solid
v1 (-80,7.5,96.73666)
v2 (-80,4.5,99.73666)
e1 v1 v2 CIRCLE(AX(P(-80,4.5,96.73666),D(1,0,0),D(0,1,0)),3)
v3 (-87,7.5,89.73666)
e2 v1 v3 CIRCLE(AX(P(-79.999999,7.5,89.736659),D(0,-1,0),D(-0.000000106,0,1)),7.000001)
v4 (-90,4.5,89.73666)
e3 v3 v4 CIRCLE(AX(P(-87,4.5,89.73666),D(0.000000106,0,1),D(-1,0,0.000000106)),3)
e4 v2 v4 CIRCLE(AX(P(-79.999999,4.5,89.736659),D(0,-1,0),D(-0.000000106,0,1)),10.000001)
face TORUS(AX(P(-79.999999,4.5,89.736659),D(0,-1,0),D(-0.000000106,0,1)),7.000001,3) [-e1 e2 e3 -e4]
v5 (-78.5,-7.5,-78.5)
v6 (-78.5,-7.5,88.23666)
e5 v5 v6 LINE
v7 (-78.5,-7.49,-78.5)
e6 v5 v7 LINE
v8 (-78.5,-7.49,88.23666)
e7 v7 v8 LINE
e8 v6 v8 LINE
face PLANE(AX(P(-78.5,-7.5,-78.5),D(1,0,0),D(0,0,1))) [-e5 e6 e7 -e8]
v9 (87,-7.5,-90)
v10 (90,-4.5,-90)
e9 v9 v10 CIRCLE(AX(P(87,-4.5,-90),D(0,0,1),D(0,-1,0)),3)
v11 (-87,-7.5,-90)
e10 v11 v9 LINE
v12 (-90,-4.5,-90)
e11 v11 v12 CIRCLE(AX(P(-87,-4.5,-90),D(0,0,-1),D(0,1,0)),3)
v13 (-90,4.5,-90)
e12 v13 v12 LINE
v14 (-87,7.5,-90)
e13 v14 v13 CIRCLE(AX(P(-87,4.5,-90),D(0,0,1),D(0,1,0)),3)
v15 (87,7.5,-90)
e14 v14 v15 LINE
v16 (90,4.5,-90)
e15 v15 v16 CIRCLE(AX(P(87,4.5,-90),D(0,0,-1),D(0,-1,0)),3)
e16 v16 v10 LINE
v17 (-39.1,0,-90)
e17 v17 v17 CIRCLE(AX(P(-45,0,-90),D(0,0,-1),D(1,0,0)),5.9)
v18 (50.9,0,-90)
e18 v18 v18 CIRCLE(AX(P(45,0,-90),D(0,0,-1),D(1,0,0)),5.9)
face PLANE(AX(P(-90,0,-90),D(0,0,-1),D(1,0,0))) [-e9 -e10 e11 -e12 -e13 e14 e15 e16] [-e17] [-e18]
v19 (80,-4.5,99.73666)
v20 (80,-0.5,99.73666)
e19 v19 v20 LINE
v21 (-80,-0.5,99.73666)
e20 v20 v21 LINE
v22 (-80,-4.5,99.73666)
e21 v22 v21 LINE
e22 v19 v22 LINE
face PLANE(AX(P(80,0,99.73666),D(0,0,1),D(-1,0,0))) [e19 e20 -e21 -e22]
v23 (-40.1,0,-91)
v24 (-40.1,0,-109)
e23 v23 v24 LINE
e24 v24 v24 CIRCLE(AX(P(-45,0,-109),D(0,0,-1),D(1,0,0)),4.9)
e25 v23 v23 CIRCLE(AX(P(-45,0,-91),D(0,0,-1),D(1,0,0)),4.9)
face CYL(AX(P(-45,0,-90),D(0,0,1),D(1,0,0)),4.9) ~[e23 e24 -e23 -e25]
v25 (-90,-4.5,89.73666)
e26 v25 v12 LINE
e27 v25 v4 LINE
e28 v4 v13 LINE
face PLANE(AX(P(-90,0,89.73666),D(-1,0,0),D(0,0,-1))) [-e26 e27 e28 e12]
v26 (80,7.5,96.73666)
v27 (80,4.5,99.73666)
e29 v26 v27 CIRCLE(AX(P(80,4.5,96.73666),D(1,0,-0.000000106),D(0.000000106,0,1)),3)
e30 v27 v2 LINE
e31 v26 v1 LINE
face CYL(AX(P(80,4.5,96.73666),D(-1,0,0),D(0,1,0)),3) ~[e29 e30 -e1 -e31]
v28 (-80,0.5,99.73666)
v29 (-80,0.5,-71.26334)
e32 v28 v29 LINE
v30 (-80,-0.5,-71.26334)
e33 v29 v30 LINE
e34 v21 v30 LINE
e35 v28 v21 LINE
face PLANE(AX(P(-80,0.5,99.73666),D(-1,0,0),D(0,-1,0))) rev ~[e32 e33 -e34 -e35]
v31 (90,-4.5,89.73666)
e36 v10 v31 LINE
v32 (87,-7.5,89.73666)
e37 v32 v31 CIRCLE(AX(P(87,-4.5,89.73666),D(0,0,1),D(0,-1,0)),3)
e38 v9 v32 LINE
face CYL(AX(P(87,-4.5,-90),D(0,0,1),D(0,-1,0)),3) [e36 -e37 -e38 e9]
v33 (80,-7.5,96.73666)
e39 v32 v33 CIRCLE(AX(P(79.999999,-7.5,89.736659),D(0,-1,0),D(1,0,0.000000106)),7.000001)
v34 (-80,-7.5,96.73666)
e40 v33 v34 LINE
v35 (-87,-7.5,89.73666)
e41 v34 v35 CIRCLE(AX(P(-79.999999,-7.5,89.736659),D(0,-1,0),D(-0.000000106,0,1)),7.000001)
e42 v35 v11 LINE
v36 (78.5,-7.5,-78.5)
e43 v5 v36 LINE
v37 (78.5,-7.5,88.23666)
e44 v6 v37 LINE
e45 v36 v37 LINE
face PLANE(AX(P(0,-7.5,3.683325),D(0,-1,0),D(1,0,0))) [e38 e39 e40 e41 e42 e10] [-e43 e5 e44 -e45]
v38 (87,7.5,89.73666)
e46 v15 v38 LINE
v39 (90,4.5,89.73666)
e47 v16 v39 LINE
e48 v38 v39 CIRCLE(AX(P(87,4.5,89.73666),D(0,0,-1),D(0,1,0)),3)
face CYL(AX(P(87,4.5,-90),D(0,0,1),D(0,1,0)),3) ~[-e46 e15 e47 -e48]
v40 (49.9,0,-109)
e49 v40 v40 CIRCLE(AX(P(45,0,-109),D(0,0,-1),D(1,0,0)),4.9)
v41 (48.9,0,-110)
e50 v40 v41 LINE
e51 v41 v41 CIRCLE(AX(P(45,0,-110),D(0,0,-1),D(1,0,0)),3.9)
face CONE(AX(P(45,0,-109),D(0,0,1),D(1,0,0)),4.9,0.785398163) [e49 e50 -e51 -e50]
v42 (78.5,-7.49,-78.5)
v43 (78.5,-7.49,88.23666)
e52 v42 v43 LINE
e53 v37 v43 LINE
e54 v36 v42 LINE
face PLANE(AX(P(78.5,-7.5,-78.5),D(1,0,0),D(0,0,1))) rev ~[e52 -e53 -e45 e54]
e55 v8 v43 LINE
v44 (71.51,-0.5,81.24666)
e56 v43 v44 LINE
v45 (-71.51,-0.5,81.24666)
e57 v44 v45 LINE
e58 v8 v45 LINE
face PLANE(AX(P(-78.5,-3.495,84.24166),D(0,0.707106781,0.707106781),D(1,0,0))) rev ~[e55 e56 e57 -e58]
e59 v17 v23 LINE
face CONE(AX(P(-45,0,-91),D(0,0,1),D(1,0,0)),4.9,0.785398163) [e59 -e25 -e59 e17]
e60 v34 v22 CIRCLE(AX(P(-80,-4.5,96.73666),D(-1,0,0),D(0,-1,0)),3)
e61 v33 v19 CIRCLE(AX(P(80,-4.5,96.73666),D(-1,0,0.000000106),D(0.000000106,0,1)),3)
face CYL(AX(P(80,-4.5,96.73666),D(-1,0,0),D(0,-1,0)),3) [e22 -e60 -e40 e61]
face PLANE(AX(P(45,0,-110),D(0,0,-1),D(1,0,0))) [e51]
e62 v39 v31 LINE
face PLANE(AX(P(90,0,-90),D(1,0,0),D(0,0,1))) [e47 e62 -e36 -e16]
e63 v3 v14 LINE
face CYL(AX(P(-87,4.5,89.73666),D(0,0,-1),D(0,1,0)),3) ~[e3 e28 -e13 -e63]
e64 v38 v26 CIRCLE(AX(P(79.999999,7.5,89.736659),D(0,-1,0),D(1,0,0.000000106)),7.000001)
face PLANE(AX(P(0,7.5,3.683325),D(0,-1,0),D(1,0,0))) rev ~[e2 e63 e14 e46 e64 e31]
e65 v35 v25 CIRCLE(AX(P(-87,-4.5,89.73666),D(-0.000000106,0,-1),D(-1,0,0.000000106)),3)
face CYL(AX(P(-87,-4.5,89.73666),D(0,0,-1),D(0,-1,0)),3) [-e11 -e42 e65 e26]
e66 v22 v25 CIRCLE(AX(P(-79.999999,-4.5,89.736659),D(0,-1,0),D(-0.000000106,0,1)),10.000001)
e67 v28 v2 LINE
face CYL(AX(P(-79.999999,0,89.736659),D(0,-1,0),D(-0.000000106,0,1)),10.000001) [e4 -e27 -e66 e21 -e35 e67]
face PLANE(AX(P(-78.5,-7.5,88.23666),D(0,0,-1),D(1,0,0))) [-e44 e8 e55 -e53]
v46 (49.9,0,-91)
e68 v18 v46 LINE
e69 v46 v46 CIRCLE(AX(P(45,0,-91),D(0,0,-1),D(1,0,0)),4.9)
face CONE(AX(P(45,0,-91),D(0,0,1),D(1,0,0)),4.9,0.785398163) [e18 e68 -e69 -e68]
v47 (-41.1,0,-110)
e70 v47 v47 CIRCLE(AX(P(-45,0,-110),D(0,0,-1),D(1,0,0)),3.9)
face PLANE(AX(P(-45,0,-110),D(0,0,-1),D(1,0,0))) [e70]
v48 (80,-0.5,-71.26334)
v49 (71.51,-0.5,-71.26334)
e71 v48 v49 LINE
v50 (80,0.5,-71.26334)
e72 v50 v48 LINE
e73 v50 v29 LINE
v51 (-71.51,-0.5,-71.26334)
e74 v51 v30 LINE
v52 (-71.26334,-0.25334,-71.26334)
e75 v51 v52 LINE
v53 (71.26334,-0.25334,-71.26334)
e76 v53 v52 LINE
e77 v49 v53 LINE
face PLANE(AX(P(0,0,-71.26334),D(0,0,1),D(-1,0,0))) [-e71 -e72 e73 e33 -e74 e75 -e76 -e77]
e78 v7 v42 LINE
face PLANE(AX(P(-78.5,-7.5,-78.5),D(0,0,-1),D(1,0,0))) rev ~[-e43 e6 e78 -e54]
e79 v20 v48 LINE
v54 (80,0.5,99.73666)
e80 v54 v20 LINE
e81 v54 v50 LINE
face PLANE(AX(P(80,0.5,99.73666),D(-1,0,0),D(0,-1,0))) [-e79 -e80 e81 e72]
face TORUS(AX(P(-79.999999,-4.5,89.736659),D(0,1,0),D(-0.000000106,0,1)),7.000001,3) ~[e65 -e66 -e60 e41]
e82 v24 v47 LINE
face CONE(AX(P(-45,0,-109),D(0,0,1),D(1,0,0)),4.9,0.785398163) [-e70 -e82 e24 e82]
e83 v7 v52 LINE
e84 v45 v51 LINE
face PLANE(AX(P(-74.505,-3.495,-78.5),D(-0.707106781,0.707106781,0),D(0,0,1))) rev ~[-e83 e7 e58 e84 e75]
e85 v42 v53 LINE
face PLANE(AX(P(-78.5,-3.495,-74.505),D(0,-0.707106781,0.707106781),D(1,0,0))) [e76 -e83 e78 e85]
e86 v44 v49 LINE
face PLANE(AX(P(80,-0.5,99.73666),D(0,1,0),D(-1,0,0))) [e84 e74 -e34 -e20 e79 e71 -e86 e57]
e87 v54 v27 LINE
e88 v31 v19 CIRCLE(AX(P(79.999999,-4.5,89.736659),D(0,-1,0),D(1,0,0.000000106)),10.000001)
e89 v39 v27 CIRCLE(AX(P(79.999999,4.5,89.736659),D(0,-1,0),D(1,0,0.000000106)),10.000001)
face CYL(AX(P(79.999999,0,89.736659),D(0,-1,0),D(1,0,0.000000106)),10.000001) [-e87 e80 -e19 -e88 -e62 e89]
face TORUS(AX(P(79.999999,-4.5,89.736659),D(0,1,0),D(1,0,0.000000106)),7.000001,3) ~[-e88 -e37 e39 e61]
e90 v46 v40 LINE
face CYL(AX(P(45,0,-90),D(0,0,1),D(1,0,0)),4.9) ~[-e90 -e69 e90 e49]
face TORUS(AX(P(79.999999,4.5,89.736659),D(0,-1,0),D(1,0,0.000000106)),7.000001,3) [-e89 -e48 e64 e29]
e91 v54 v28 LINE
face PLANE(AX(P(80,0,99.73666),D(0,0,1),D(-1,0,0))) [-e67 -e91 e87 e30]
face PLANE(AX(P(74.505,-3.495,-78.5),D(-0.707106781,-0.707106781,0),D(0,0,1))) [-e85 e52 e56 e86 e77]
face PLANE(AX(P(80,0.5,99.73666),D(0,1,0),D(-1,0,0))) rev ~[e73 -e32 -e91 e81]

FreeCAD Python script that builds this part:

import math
import FreeCAD as App
import Part
import Sketcher
from FreeCAD import Vector
Q = App.Units.Quantity


def edges_at(feature, points):
    """Names of the edges that pass closest to the given points."""
    edges = feature.Shape.Edges
    near = lambda p: min(range(len(edges)), key=lambda i: edges[i].distToShape(Part.Vertex(*p))[0])
    return sorted({f"Edge{near(p) + 1}" for p in points})


def add_polygon(sketch, points):
    """Adds a closed chain of lines whose ends are joined by coincident constraints."""
    first, n = sketch.GeometryCount, len(points)
    for a, b in zip(points, points[1:] + points[:1]):
        sketch.addGeometry(Part.LineSegment(App.Vector(*a, 0), App.Vector(*b, 0)), False)
    for i in range(n):
        sketch.addConstraint(Sketcher.Constraint("Coincident", first + i, 2, first + (i + 1) % n, 1))

doc = App.newDocument("Part")
body = doc.addObject("PartDesign::Body", "Body")

# Sketch on XZ plane
sketch1 = body.newObject("Sketcher::SketchObject", "Sketch")
sketch1.AttachmentSupport = (doc.getObject("XZ_Plane"), [""])
sketch1.MapMode = "FlatFace"
sketch1.addGeometry(Part.LineSegment(Vector(-90, 89.73666, 0), Vector(-90, -90, 0)), False)
sketch1.addGeometry(Part.LineSegment(Vector(-90, -90, 0), Vector(90, -90, 0)), False)
sketch1.addGeometry(Part.LineSegment(Vector(90, -90, 0), Vector(90, 89.73666, 0)), False)
sketch1.addGeometry(Part.ArcOfCircle(Part.Circle(Vector(79.999999, 89.736659, 0), Vector(0, 0, 1), 10.000001), math.radians(0.000006), math.radians(89.999994)), False)
sketch1.addGeometry(Part.LineSegment(Vector(80, 99.73666, 0), Vector(-80, 99.73666, 0)), False)
sketch1.addGeometry(Part.ArcOfCircle(Part.Circle(Vector(-79.999999, 89.736659, 0), Vector(0, 0, 1), 10.000001), math.radians(90.000006), math.radians(179.999994)), False)
sketch1.addConstraint(Sketcher.Constraint("Coincident", 0, 2, 1, 1))
sketch1.addConstraint(Sketcher.Constraint("Coincident", 1, 2, 2, 1))
sketch1.addConstraint(Sketcher.Constraint("Tangent", 2, 2, 3, 1))
sketch1.addConstraint(Sketcher.Constraint("Tangent", 3, 2, 4, 1))
sketch1.addConstraint(Sketcher.Constraint("Tangent", 4, 2, 5, 1))
sketch1.addConstraint(Sketcher.Constraint("Tangent", 5, 2, 0, 1))
sketch1.addConstraint(Sketcher.Constraint("Vertical", 0))
sketch1.addConstraint(Sketcher.Constraint("Horizontal", 1))
sketch1.addConstraint(Sketcher.Constraint("Vertical", 2))
sketch1.addConstraint(Sketcher.Constraint("Horizontal", 4))
sketch1.addConstraint(Sketcher.Constraint("Equal", 3, 5))
sketch1.addConstraint(Sketcher.Constraint("Radius", 3, Q("10.000001 mm")))
sketch1.addConstraint(Sketcher.Constraint("DistanceX", 1, 1, 1, 2, Q("180 mm")))
sketch1.addConstraint(Sketcher.Constraint("DistanceX", -1, 1, 3, 3, Q("79.999999 mm")))
sketch1.addConstraint(Sketcher.Constraint("DistanceY", 0, 2, -1, 1, Q("90 mm")))
sketch1.addConstraint(Sketcher.Constraint("DistanceY", 0, 2, 0, 1, Q("179.73666 mm")))
pad1 = body.newObject("PartDesign::Pad", "Pad")
pad1.Profile = sketch1
pad1.Length = 15
pad1.Midplane = True

# Sketch on XZ plane
sketch2 = body.newObject("Sketcher::SketchObject", "Sketch001")
sketch2.AttachmentSupport = (doc.getObject("XZ_Plane"), [""])
sketch2.MapMode = "FlatFace"
sketch2.AttachmentOffset = App.Placement(Vector(0, 0, 7.5), App.Rotation())
add_polygon(sketch2, [(-78.5, 88.23666), (-78.5, -78.5), (78.5, -78.5), (78.5, 88.23666)])  # lines 0-3
sketch2.addConstraint(Sketcher.Constraint("Vertical", 0))
sketch2.addConstraint(Sketcher.Constraint("Horizontal", 1))
sketch2.addConstraint(Sketcher.Constraint("Vertical", 2))
sketch2.addConstraint(Sketcher.Constraint("Horizontal", 3))
sketch2.addConstraint(Sketcher.Constraint("DistanceX", 1, 1, 1, 2, Q("157 mm")))
sketch2.addConstraint(Sketcher.Constraint("DistanceX", 0, 2, -1, 1, Q("78.5 mm")))
sketch2.addConstraint(Sketcher.Constraint("DistanceY", 0, 2, -1, 1, Q("78.5 mm")))
sketch2.addConstraint(Sketcher.Constraint("DistanceY", 0, 2, 0, 1, Q("166.73666 mm")))
pocket1 = body.newObject("PartDesign::Pocket", "Pocket")
pocket1.Profile = sketch2
pocket1.Length = 8
doc.recompute()

chamfer = body.newObject("PartDesign::Chamfer", "Chamfer")
chamfer.Base = (pocket1, edges_at(pocket1, [
    (0, 0.5, 88.237),
    (-78.5, 0.5, 4.868),
    (0, 0.5, -78.5),
    (78.5, 0.5, 4.868),
]))
chamfer.Size = 7.99

# Sketch on XY plane
sketch3 = body.newObject("Sketcher::SketchObject", "Sketch002")
sketch3.AttachmentSupport = (doc.getObject("XY_Plane"), [""])
sketch3.MapMode = "FlatFace"
sketch3.AttachmentOffset = App.Placement(Vector(0, 0, -90), App.Rotation())
sketch3.addGeometry(Part.Circle(Vector(-45, 0, 0), Vector(0, 0, 1), 4.9), False)
sketch3.addGeometry(Part.Circle(Vector(45, 0, 0), Vector(0, 0, 1), 4.9), False)
sketch3.addConstraint(Sketcher.Constraint("Equal", 0, 1))
sketch3.addConstraint(Sketcher.Constraint("Symmetric", 0, 3, 1, 3, -1, 1))
sketch3.addConstraint(Sketcher.Constraint("PointOnObject", 0, 3, -1))
sketch3.addConstraint(Sketcher.Constraint("Diameter", 0, Q("9.8 mm")))
sketch3.addConstraint(Sketcher.Constraint("DistanceX", 0, 3, -1, 1, Q("45 mm")))
pad2 = body.newObject("PartDesign::Pad", "Pad001")
pad2.Profile = sketch3
pad2.Length = 20
pad2.Reversed = True
doc.recompute()

chamfer2 = body.newObject("PartDesign::Chamfer", "Chamfer001")
chamfer2.Base = (pad2, edges_at(pad2, [
    (40.1, 0, -90),
    (-49.9, 0, -90),
    (-49.9, 0, -110),
    (40.1, 0, -110),
]))
chamfer2.Size = 1
doc.recompute()

fillet = body.newObject("PartDesign::Fillet", "Fillet")
fillet.Base = (chamfer2, edges_at(chamfer2, [(90, -7.5, -0.132), (90, 7.5, -0.132)]))
fillet.Radius = 3

# Sketch on XY plane
sketch4 = body.newObject("Sketcher::SketchObject", "Sketch003")
sketch4.AttachmentSupport = (doc.getObject("XY_Plane"), [""])
sketch4.MapMode = "FlatFace"
sketch4.AttachmentOffset = App.Placement(Vector(0, 0, 99.73666), App.Rotation())
add_polygon(sketch4, [(80, -0.5), (80, 0.5), (-80, 0.5), (-80, -0.5)])  # lines 0-3
sketch4.addConstraint(Sketcher.Constraint("Vertical", 0))
sketch4.addConstraint(Sketcher.Constraint("Horizontal", 1))
sketch4.addConstraint(Sketcher.Constraint("Vertical", 2))
sketch4.addConstraint(Sketcher.Constraint("Horizontal", 3))
sketch4.addConstraint(Sketcher.Constraint("Symmetric", 0, 2, 2, 2, -1, 1))
sketch4.addConstraint(Sketcher.Constraint("DistanceX", 1, 2, 1, 1, Q("160 mm")))
sketch4.addConstraint(Sketcher.Constraint("DistanceY", 0, 1, 0, 2, Q("1 mm")))
pocket2 = body.newObject("PartDesign::Pocket", "Pocket001")
pocket2.Profile = sketch4
pocket2.Length = 171

doc.recompute()
